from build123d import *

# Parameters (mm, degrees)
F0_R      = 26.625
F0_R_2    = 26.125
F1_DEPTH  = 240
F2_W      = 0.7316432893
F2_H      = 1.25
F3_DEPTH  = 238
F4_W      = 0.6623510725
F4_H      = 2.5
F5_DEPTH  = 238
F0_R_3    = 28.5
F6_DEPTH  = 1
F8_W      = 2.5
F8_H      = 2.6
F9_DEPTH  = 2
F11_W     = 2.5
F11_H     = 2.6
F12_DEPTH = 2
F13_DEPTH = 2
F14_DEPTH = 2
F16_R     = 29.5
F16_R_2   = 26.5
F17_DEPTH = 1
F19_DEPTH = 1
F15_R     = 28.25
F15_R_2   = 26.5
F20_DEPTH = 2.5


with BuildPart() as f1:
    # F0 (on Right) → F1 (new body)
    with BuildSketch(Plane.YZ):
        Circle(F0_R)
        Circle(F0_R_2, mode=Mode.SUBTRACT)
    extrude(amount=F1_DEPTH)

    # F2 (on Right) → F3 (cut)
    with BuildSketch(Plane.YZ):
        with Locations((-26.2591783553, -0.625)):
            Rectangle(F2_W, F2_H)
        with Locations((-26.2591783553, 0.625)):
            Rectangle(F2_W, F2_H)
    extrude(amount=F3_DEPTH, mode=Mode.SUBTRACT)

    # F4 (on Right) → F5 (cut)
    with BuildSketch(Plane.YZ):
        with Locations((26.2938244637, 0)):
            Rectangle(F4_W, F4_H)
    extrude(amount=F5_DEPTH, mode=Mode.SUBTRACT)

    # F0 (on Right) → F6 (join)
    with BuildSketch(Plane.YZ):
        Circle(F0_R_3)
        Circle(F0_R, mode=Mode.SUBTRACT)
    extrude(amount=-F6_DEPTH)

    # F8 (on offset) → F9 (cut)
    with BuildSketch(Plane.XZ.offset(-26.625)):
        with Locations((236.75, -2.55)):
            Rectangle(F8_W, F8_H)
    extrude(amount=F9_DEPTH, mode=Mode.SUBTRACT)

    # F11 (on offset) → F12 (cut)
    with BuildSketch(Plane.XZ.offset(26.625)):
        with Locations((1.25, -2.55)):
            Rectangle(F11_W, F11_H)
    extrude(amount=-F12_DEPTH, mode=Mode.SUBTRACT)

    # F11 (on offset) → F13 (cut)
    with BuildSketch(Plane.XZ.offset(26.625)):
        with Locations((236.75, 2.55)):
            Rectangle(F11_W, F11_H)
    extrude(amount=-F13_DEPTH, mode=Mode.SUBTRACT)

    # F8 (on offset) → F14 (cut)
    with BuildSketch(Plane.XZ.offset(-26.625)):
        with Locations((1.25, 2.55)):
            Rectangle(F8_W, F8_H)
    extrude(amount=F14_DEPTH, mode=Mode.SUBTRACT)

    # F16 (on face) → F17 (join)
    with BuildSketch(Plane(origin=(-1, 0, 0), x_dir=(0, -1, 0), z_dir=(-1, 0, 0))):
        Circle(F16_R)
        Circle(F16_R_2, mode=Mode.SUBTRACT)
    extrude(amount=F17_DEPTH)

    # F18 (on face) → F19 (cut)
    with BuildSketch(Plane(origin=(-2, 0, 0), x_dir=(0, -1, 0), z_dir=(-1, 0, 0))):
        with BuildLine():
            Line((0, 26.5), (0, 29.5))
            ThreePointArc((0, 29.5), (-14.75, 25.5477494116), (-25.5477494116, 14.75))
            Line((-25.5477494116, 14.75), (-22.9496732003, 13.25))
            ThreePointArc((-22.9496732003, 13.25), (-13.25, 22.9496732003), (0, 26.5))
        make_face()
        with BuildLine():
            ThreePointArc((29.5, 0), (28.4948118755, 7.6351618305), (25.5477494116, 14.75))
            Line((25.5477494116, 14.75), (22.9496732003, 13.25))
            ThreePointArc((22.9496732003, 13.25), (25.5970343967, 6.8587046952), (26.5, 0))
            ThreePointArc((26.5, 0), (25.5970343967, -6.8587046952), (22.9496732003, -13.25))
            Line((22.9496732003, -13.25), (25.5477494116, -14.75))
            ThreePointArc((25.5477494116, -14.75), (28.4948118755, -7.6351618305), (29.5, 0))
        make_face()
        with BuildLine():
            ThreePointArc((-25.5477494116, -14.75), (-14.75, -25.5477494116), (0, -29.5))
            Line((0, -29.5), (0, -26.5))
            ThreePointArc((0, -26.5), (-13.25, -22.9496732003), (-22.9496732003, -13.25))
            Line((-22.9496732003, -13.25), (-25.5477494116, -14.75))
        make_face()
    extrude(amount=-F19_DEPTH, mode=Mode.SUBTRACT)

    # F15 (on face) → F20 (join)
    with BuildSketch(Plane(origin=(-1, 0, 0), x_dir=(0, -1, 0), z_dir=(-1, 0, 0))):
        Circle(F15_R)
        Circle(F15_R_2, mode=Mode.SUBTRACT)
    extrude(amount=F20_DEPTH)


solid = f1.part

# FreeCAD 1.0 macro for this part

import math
import FreeCAD as App
import Part
import Sketcher
Q = App.Units.Quantity


def add_polygon(sketch, points):
    """Adds a closed chain of lines whose ends are joined by coincident constraints."""
    first, n = sketch.GeometryCount, len(points)
    for a, b in zip(points, points[1:] + points[:1]):
        sketch.addGeometry(Part.LineSegment(App.Vector(*a, 0), App.Vector(*b, 0)), False)
    for i in range(n):
        sketch.addConstraint(Sketcher.Constraint("Coincident", first + i, 2, first + (i + 1) % n, 1))

doc = App.newDocument("Part")
body = doc.addObject("PartDesign::Body", "Body")
body.AllowCompound = True

sketch1 = body.newObject("Sketcher::SketchObject", "Sketch")
sketch1.AttachmentSupport = (doc.getObject("YZ_Plane"), [""])
sketch1.MapMode = "FlatFace"
sketch1.addGeometry(Part.Circle(App.Vector(0, 0, 0), App.Vector(0, 0, 1), 27), False)
sketch1.addGeometry(Part.Circle(App.Vector(0, 0, 0), App.Vector(0, 0, 1), 26), False)
sketch1.addConstraint(Sketcher.Constraint("Coincident", 0, 3, -1, 1))
sketch1.addConstraint(Sketcher.Constraint("Coincident", 1, 3, -1, 1))
sketch1.addConstraint(Sketcher.Constraint("Diameter", 0, 53.25))
sketch1.addConstraint(Sketcher.Constraint("Diameter", 1, 52.25))
pad1 = body.newObject("PartDesign::Pad", "Pad")
pad1.Profile = sketch1
pad1.Length = 240

sketch2 = body.newObject("Sketcher::SketchObject", "Sketch001")
sketch2.AttachmentSupport = (doc.getObject("YZ_Plane"), [""])
sketch2.MapMode = "FlatFace"
add_polygon(sketch2, [(-26.6, -1.2), (-25.9, -1.2), (-25.9, 1.2), (-26.6, 1.2)])
sketch2.addConstraint(Sketcher.Constraint("Horizontal", 0))
sketch2.addConstraint(Sketcher.Constraint("Vertical", 1))
sketch2.addConstraint(Sketcher.Constraint("Horizontal", 2))
sketch2.addConstraint(Sketcher.Constraint("Vertical", 3))
sketch2.addConstraint(Sketcher.Constraint("DistanceY", 1, 1, 1, 2, 2.5))
sketch2.addConstraint(Sketcher.Constraint("DistanceY", 0, 2, -1, 1, 1.25))
sketch2.addConstraint(Sketcher.Constraint("DistanceX", 2, 2, -1, 1, 26.625))
sketch2.addConstraint(Sketcher.Constraint("DistanceX", 0, 1, 0, 2, 0.731643))
pocket1 = body.newObject("PartDesign::Pocket", "Pocket")
pocket1.Profile = sketch2
pocket1.Length = 238
pocket1.Reversed = True

sketch3 = body.newObject("Sketcher::SketchObject", "Sketch002")
sketch3.AttachmentSupport = (doc.getObject("YZ_Plane"), [""])
sketch3.MapMode = "FlatFace"
add_polygon(sketch3, [(26, 1.2), (26, -1.2), (26.6, -1.2), (26.6, 1.2)])
sketch3.addConstraint(Sketcher.Constraint("Vertical", 0))
sketch3.addConstraint(Sketcher.Constraint("Horizontal", 1))
sketch3.addConstraint(Sketcher.Constraint("Vertical", 2))
sketch3.addConstraint(Sketcher.Constraint("Horizontal", 3))
sketch3.addConstraint(Sketcher.Constraint("DistanceY", 0, 2, 0, 1, 2.5))
sketch3.addConstraint(Sketcher.Constraint("DistanceY", 0, 2, -1, 1, 1.25))
sketch3.addConstraint(Sketcher.Constraint("DistanceX", -1, 1, 1, 2, 26.625))
sketch3.addConstraint(Sketcher.Constraint("DistanceX", 1, 1, 1, 2, 0.662351))
pocket2 = body.newObject("PartDesign::Pocket", "Pocket001")
pocket2.Profile = sketch3
pocket2.Length = 238
pocket2.Reversed = True

sketch4 = body.newObject("Sketcher::SketchObject", "Sketch003")
sketch4.AttachmentSupport = (doc.getObject("YZ_Plane"), [""])
sketch4.MapMode = "FlatFace"
sketch4.addGeometry(Part.Circle(App.Vector(0, 0, 0), App.Vector(0, 0, 1), 28), False)
sketch4.addGeometry(Part.Circle(App.Vector(0, 0, 0), App.Vector(0, 0, 1), 27), False)
sketch4.addConstraint(Sketcher.Constraint("Coincident", 0, 3, -1, 1))
sketch4.addConstraint(Sketcher.Constraint("Coincident", 1, 3, -1, 1))
sketch4.addConstraint(Sketcher.Constraint("Diameter", 0, 57.0))
sketch4.addConstraint(Sketcher.Constraint("Diameter", 1, 53.25))
pad2 = body.newObject("PartDesign::Pad", "Pad001")
pad2.Profile = sketch4
pad2.Length = 1
pad2.Reversed = True

sketch5 = body.newObject("Sketcher::SketchObject", "Sketch004")
sketch5.AttachmentSupport = (doc.getObject("XZ_Plane"), [""])
sketch5.MapMode = "FlatFace"
sketch5.AttachmentOffset = App.Placement(App.Vector(0, 0, -26.625), App.Rotation())
add_polygon(sketch5, [(235.5, -1.2), (235.5, -3.9), (238, -3.9), (238, -1.2)])
sketch5.addConstraint(Sketcher.Constraint("Vertical", 0))
sketch5.addConstraint(Sketcher.Constraint("Horizontal", 1))
sketch5.addConstraint(Sketcher.Constraint("Vertical", 2))
sketch5.addConstraint(Sketcher.Constraint("Horizontal", 3))
sketch5.addConstraint(Sketcher.Constraint("DistanceX", 1, 1, 1, 2, 2.5))
sketch5.addConstraint(Sketcher.Constraint("DistanceY", 0, 2, 0, 1, 2.6))
sketch5.addConstraint(Sketcher.Constraint("DistanceX", -1, 1, 1, 2, 238.0))
sketch5.addConstraint(Sketcher.Constraint("DistanceY", 0, 2, -1, 1, 3.85))
pocket3 = body.newObject("PartDesign::Pocket", "Pocket002")
pocket3.Profile = sketch5
pocket3.Length = 2
pocket3.Reversed = True

sketch6 = body.newObject("Sketcher::SketchObject", "Sketch005")
sketch6.AttachmentSupport = (doc.getObject("XZ_Plane"), [""])
sketch6.MapMode = "FlatFace"
sketch6.AttachmentOffset = App.Placement(App.Vector(0, 0, 26.625), App.Rotation())
add_polygon(sketch6, [(0, -1.2), (0, -3.9), (2.5, -3.9), (2.5, -1.2)])
sketch6.addConstraint(Sketcher.Constraint("Vertical", 0))
sketch6.addConstraint(Sketcher.Constraint("Horizontal", 1))
sketch6.addConstraint(Sketcher.Constraint("Vertical", 2))
sketch6.addConstraint(Sketcher.Constraint("Horizontal", 3))
sketch6.addConstraint(Sketcher.Constraint("PointOnObject", 0, 2, -2))
sketch6.addConstraint(Sketcher.Constraint("DistanceX", 1, 1, 1, 2, 2.5))
sketch6.addConstraint(Sketcher.Constraint("DistanceY", 0, 2, 0, 1, 2.6))
sketch6.addConstraint(Sketcher.Constraint("DistanceY", 0, 2, -1, 1, 3.85))
pocket4 = body.newObject("PartDesign::Pocket", "Pocket003")
pocket4.Profile = sketch6
pocket4.Length = 2

sketch7 = body.newObject("Sketcher::SketchObject", "Sketch006")
sketch7.AttachmentSupport = (doc.getObject("XZ_Plane"), [""])
sketch7.MapMode = "FlatFace"
sketch7.AttachmentOffset = App.Placement(App.Vector(0, 0, 26.625), App.Rotation())
add_polygon(sketch7, [(235.5, 3.9), (235.5, 1.2), (238, 1.2), (238, 3.9)])
sketch7.addConstraint(Sketcher.Constraint("Vertical", 0))
sketch7.addConstraint(Sketcher.Constraint("Horizontal", 1))
sketch7.addConstraint(Sketcher.Constraint("Vertical", 2))
sketch7.addConstraint(Sketcher.Constraint("Horizontal", 3))
sketch7.addConstraint(Sketcher.Constraint("DistanceX", 1, 1, 1, 2, 2.5))
sketch7.addConstraint(Sketcher.Constraint("DistanceY", 0, 2, 0, 1, 2.6))
sketch7.addConstraint(Sketcher.Constraint("DistanceX", -1, 1, 1, 2, 238.0))
sketch7.addConstraint(Sketcher.Constraint("DistanceY", -1, 1, 0, 2, 1.25))
pocket5 = body.newObject("PartDesign::Pocket", "Pocket004")
pocket5.Profile = sketch7
pocket5.Length = 2

sketch8 = body.newObject("Sketcher::SketchObject", "Sketch007")
sketch8.AttachmentSupport = (doc.getObject("XZ_Plane"), [""])
sketch8.MapMode = "FlatFace"
sketch8.AttachmentOffset = App.Placement(App.Vector(0, 0, -26.625), App.Rotation())
add_polygon(sketch8, [(0, 3.9), (0, 1.2), (2.5, 1.2), (2.5, 3.9)])
sketch8.addConstraint(Sketcher.Constraint("Vertical", 0))
sketch8.addConstraint(Sketcher.Constraint("Horizontal", 1))
sketch8.addConstraint(Sketcher.Constraint("Vertical", 2))
sketch8.addConstraint(Sketcher.Constraint("Horizontal", 3))
sketch8.addConstraint(Sketcher.Constraint("PointOnObject", 0, 2, -2))
sketch8.addConstraint(Sketcher.Constraint("DistanceX", 1, 1, 1, 2, 2.5))
sketch8.addConstraint(Sketcher.Constraint("DistanceY", 0, 2, 0, 1, 2.6))
sketch8.addConstraint(Sketcher.Constraint("DistanceY", -1, 1, 0, 2, 1.25))
pocket6 = body.newObject("PartDesign::Pocket", "Pocket005")
pocket6.Profile = sketch8
pocket6.Length = 2
pocket6.Reversed = True

sketch9 = body.newObject("Sketcher::SketchObject", "Sketch008")
sketch9.AttachmentSupport = (doc.getObject("YZ_Plane"), [""])
sketch9.MapMode = "FlatFace"
sketch9.AttachmentOffset = App.Placement(App.Vector(0, 0, -1), App.Rotation())
sketch9.addGeometry(Part.Circle(App.Vector(0, 0, 0), App.Vector(0, 0, 1), 30), False)
sketch9.addGeometry(Part.Circle(App.Vector(0, 0, 0), App.Vector(0, 0, 1), 26), False)
sketch9.addConstraint(Sketcher.Constraint("Coincident", 0, 3, -1, 1))
sketch9.addConstraint(Sketcher.Constraint("Coincident", 1, 3, -1, 1))
sketch9.addConstraint(Sketcher.Constraint("Diameter", 0, 59.0))
sketch9.addConstraint(Sketcher.Constraint("Diameter", 1, 53.0))
pad3 = body.newObject("PartDesign::Pad", "Pad002")
pad3.Profile = sketch9
pad3.Length = 1
pad3.Reversed = True

sketch10 = body.newObject("Sketcher::SketchObject", "Sketch009")
sketch10.AttachmentSupport = (doc.getObject("YZ_Plane"), [""])
sketch10.MapMode = "FlatFace"
sketch10.AttachmentOffset = App.Placement(App.Vector(0, 0, -2), App.Rotation())
sketch10.addGeometry(Part.LineSegment(App.Vector(0, 26.5, 0), App.Vector(0, 29.5, 0)), False)
sketch10.addGeometry(Part.ArcOfCircle(Part.Circle(App.Vector(0, 0, 0), App.Vector(0, 0, 1), 29.5), math.radians(30), math.radians(90)), False)
sketch10.addGeometry(Part.LineSegment(App.Vector(25.5, 14.8, 0), App.Vector(22.9, 13.2, 0)), False)
sketch10.addGeometry(Part.ArcOfCircle(Part.Circle(App.Vector(0, 0, 0), App.Vector(0, 0, 1), 26.5), math.radians(30), math.radians(90)), False)
sketch10.addGeometry(Part.ArcOfCircle(Part.Circle(App.Vector(0, 0, 0), App.Vector(0, 0, 1), 29.5), math.radians(150), math.radians(180)), False)
sketch10.addGeometry(Part.LineSegment(App.Vector(-25.5, 14.8, 0), App.Vector(-22.9, 13.2, 0)), False)
sketch10.addGeometry(Part.ArcOfCircle(Part.Circle(App.Vector(0, 0, 0), App.Vector(0, 0, 1), 26.5), math.radians(150), math.radians(180)), False)
sketch10.addGeometry(Part.ArcOfCircle(Part.Circle(App.Vector(0, 0, 0), App.Vector(0, 0, 1), 26.5), math.radians(180), math.radians(210)), False)
sketch10.addGeometry(Part.LineSegment(App.Vector(-22.9, -13.2, 0), App.Vector(-25.5, -14.8, 0)), False)
sketch10.addGeometry(Part.ArcOfCircle(Part.Circle(App.Vector(0, 0, 0), App.Vector(0, 0, 1), 29.5), math.radians(180), math.radians(210)), False)
sketch10.addGeometry(Part.ArcOfCircle(Part.Circle(App.Vector(0, 0, 0), App.Vector(0, 0, 1), 29.5), math.radians(-90), math.radians(-30)), False)
sketch10.addGeometry(Part.LineSegment(App.Vector(0, -29.5, 0), App.Vector(0, -26.5, 0)), False)
sketch10.addGeometry(Part.ArcOfCircle(Part.Circle(App.Vector(0, 0, 0), App.Vector(0, 0, 1), 26.5), math.radians(-90), math.radians(-30)), False)
sketch10.addGeometry(Part.LineSegment(App.Vector(22.9, -13.2, 0), App.Vector(25.5, -14.8, 0)), False)
sketch10.addConstraint(Sketcher.Constraint("Coincident", 0, 2, 1, 2))
sketch10.addConstraint(Sketcher.Constraint("Coincident", 1, 1, 2, 1))
sketch10.addConstraint(Sketcher.Constraint("Coincident", 2, 2, 3, 1))
sketch10.addConstraint(Sketcher.Constraint("Coincident", 3, 2, 0, 1))
sketch10.addConstraint(Sketcher.Constraint("Coincident", 4, 1, 5, 1))
sketch10.addConstraint(Sketcher.Constraint("Coincident", 5, 2, 6, 1))
sketch10.addConstraint(Sketcher.Constraint("Tangent", 6, 2, 7, 1))
sketch10.addConstraint(Sketcher.Constraint("Coincident", 7, 2, 8, 1))
sketch10.addConstraint(Sketcher.Constraint("Coincident", 8, 2, 9, 2))
sketch10.addConstraint(Sketcher.Constraint("Tangent", 9, 1, 4, 2))
sketch10.addConstraint(Sketcher.Constraint("Coincident", 10, 1, 11, 1))
sketch10.addConstraint(Sketcher.Constraint("Coincident", 11, 2, 12, 1))
sketch10.addConstraint(Sketcher.Constraint("Coincident", 12, 2, 13, 1))
sketch10.addConstraint(Sketcher.Constraint("Coincident", 13, 2, 10, 2))
sketch10.addConstraint(Sketcher.Constraint("Vertical", 0))
sketch10.addConstraint(Sketcher.Constraint("Vertical", 11))
sketch10.addConstraint(Sketcher.Constraint("Coincident", 1, 3, -1, 1))
sketch10.addConstraint(Sketcher.Constraint("Coincident", 3, 3, -1, 1))
sketch10.addConstraint(Sketcher.Constraint("Coincident", 4, 3, -1, 1))
sketch10.addConstraint(Sketcher.Constraint("Coincident", 6, 3, -1, 1))
sketch10.addConstraint(Sketcher.Constraint("Coincident", 10, 3, -1, 1))
sketch10.addConstraint(Sketcher.Constraint("Coincident", 12, 3, -1, 1))
sketch10.addConstraint(Sketcher.Constraint("Equal", 1, 4))
sketch10.addConstraint(Sketcher.Constraint("Equal", 3, 6))
sketch10.addConstraint(Sketcher.Constraint("Equal", 6, 7))
sketch10.addConstraint(Sketcher.Constraint("Equal", 4, 9))
sketch10.addConstraint(Sketcher.Constraint("Equal", 9, 10))
sketch10.addConstraint(Sketcher.Constraint("Equal", 7, 12))
sketch10.addConstraint(Sketcher.Constraint("PointOnObject", 0, 2, -2))
sketch10.addConstraint(Sketcher.Constraint("PointOnObject", 6, 2, -1))
sketch10.addConstraint(Sketcher.Constraint("PointOnObject", 9, 1, -1))
sketch10.addConstraint(Sketcher.Constraint("PointOnObject", 10, 1, -2))
sketch10.addConstraint(Sketcher.Constraint("Parallel", 2, 8))
sketch10.addConstraint(Sketcher.Constraint("Parallel", 5, 13))
sketch10.addConstraint(Sketcher.Constraint("Horizontal", 1, 1, 4, 1))
sketch10.addConstraint(Sketcher.Constraint("Horizontal", 2, 2, 5, 2))
sketch10.addConstraint(Sketcher.Constraint("Horizontal", 7, 2, 12, 2))
sketch10.addConstraint(Sketcher.Constraint("Vertical", 5, 2, 7, 2))
sketch10.addConstraint(Sketcher.Constraint("Radius", 1, 29.5))
sketch10.addConstraint(Sketcher.Constraint("Radius", 3, 26.5))
sketch10.addConstraint(Sketcher.Constraint("Angle", 2, Q("-150 deg")))
sketch10.addConstraint(Sketcher.Constraint("DistanceY", 8, 2, 5, 2, 28.0))
pocket7 = body.newObject("PartDesign::Pocket", "Pocket006")
pocket7.Profile = sketch10
pocket7.Length = 1
pocket7.Reversed = True

sketch11 = body.newObject("Sketcher::SketchObject", "Sketch010")
sketch11.AttachmentSupport = (doc.getObject("YZ_Plane"), [""])
sketch11.MapMode = "FlatFace"
sketch11.AttachmentOffset = App.Placement(App.Vector(0, 0, -1), App.Rotation())
sketch11.addGeometry(Part.Circle(App.Vector(0, 0, 0), App.Vector(0, 0, 1), 28), False)
sketch11.addGeometry(Part.Circle(App.Vector(0, 0, 0), App.Vector(0, 0, 1), 26), False)
sketch11.addConstraint(Sketcher.Constraint("Coincident", 0, 3, -1, 1))
sketch11.addConstraint(Sketcher.Constraint("Coincident", 1, 3, -1, 1))
sketch11.addConstraint(Sketcher.Constraint("Diameter", 1, 53.0))
sketch11.addConstraint(Sketcher.Constraint("Diameter", 0, 56.5))
pad4 = body.newObject("PartDesign::Pad", "Pad003")
pad4.Profile = sketch11
pad4.Length = 2.5
pad4.Reversed = True

doc.recompute()
